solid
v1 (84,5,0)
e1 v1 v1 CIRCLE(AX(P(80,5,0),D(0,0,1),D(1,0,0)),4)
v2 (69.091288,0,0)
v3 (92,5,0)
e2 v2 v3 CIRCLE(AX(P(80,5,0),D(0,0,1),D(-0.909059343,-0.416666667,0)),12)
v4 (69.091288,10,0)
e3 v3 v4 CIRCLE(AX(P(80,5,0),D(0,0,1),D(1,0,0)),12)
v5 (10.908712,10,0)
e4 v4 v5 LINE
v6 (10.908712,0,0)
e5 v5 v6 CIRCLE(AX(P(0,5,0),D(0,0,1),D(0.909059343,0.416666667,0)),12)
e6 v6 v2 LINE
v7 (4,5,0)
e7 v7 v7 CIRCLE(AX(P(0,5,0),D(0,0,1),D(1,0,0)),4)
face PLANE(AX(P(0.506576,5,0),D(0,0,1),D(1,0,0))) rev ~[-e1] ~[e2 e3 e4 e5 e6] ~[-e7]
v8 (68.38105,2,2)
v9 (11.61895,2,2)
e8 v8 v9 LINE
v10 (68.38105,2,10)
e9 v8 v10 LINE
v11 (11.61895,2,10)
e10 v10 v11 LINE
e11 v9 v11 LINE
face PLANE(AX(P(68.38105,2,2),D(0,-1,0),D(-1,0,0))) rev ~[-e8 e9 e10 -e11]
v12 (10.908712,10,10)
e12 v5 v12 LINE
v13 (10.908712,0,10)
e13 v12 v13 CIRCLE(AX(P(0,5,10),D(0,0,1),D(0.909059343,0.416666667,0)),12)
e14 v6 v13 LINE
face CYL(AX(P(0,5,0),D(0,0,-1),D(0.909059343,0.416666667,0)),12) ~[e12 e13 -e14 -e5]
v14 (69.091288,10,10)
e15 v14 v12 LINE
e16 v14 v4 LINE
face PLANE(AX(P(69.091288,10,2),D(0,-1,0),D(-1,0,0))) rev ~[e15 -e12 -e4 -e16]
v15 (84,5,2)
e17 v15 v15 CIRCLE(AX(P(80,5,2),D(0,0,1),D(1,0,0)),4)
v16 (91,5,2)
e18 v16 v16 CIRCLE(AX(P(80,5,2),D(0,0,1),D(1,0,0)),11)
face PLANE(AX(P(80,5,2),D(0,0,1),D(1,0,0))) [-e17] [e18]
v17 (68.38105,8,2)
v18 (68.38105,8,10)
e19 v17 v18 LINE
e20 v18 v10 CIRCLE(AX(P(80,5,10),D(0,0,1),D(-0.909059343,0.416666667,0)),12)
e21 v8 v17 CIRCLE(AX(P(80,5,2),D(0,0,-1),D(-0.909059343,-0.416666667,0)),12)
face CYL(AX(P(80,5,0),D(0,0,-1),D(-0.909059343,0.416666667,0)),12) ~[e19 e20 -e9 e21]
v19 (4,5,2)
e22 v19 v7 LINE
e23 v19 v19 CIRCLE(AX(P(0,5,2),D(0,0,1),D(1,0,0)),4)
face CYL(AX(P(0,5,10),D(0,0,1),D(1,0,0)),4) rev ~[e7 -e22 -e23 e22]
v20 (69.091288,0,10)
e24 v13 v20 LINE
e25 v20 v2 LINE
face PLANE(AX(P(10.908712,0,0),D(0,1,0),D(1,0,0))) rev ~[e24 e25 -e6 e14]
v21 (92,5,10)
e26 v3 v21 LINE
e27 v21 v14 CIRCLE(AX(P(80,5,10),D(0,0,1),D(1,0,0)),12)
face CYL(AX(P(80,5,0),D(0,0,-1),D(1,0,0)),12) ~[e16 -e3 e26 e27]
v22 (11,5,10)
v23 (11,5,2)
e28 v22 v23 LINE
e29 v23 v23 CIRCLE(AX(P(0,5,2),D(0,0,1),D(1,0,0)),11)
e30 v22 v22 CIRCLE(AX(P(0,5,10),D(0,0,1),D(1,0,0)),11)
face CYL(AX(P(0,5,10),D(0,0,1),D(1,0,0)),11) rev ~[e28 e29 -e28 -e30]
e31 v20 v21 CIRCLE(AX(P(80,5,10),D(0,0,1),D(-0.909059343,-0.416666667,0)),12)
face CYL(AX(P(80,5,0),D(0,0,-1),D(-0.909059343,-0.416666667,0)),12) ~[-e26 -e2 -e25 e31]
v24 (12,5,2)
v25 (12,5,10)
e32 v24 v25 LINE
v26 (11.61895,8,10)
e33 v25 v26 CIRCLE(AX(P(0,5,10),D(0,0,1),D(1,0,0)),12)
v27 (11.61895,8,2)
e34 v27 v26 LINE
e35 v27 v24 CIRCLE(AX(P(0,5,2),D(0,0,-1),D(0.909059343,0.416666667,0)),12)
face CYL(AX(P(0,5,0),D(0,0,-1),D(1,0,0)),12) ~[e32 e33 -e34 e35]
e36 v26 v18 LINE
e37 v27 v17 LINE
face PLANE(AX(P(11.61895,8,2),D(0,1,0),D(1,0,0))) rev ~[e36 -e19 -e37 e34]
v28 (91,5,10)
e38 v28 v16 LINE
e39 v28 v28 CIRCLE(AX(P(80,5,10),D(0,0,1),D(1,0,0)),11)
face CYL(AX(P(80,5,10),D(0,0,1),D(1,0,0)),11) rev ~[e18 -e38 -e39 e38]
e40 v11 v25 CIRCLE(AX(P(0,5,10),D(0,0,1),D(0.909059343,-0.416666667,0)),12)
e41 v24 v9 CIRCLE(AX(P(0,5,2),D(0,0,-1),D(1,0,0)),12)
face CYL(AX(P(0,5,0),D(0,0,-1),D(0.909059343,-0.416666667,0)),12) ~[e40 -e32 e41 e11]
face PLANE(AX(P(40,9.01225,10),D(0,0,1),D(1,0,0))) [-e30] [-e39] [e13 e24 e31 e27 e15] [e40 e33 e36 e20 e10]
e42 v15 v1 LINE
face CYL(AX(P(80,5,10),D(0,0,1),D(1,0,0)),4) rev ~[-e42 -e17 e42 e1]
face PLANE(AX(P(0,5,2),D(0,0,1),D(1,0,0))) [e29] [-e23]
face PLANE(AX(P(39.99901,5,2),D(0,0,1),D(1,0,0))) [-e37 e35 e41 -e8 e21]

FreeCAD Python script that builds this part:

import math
import FreeCAD as App
import Part
import Sketcher
from FreeCAD import Vector
Q = App.Units.Quantity

doc = App.newDocument("Part")
body = doc.addObject("PartDesign::Body", "Body")

sketch1 = doc.addObject("Sketcher::SketchObject", "Sketch")
body.addObject(sketch1)
sketch1.AttachmentSupport = (doc.XY_Plane, [""])
sketch1.MapMode = "FlatFace"
sketch1.addGeometry(Part.ArcOfCircle(Part.Circle(Vector(0, 5, 0), Vector(0, 0, 1), 12), math.radians(-25), math.radians(0)), False)
sketch1.addGeometry(Part.LineSegment(Vector(11, 0, 0), Vector(69, 0, 0)), False)
sketch1.addGeometry(Part.ArcOfCircle(Part.Circle(Vector(80, 5, 0), Vector(0, 0, 1), 12), math.radians(155), math.radians(205)), False)
sketch1.addGeometry(Part.LineSegment(Vector(69, 10, 0), Vector(11, 10, 0)), False)
sketch1.addGeometry(Part.ArcOfCircle(Part.Circle(Vector(0, 5, 0), Vector(0, 0, 1), 12), math.radians(0), math.radians(25)), False)
sketch1.addConstraint(Sketcher.Constraint("Coincident", 0, 1, 1, 1))
sketch1.addConstraint(Sketcher.Constraint("Coincident", 1, 2, 2, 2))
sketch1.addConstraint(Sketcher.Constraint("Coincident", 2, 1, 3, 1))
sketch1.addConstraint(Sketcher.Constraint("Coincident", 3, 2, 4, 2))
sketch1.addConstraint(Sketcher.Constraint("Tangent", 4, 1, 0, 2))
sketch1.addConstraint(Sketcher.Constraint("Horizontal", 1))
sketch1.addConstraint(Sketcher.Constraint("Horizontal", 3))
sketch1.addConstraint(Sketcher.Constraint("Equal", 0, 2))
sketch1.addConstraint(Sketcher.Constraint("Equal", 2, 4))
sketch1.addConstraint(Sketcher.Constraint("PointOnObject", 0, 3, -2))
sketch1.addConstraint(Sketcher.Constraint("PointOnObject", 0, 1, -1))
sketch1.addConstraint(Sketcher.Constraint("Horizontal", 0, 3, 2, 3))
sketch1.addConstraint(Sketcher.Constraint("Horizontal", 2, 3, 4, 1))
sketch1.addConstraint(Sketcher.Constraint("Vertical", 1, 2, 2, 1))
sketch1.addConstraint(Sketcher.Constraint("Radius", 0, Q("12 mm")))
sketch1.addConstraint(Sketcher.Constraint("DistanceY", -1, 1, 0, 3, Q("5 mm")))
sketch1.addConstraint(Sketcher.Constraint("DistanceX", -1, 1, 2, 3, Q("80 mm")))
pad1 = doc.addObject("PartDesign::Pad", "Pad")
body.addObject(pad1)
pad1.Profile = sketch1
pad1.Length = 2

sketch2 = doc.addObject("Sketcher::SketchObject", "Sketch001")
body.addObject(sketch2)
sketch2.AttachmentSupport = (doc.XY_Plane, [""])
sketch2.MapMode = "FlatFace"
sketch2.addGeometry(Part.ArcOfCircle(Part.Circle(Vector(0, 5, 0), Vector(0, 0, 1), 12), math.radians(25), math.radians(335)), False)
sketch2.addGeometry(Part.ArcOfCircle(Part.Circle(Vector(0, 5, 0), Vector(0, 0, 1), 12), math.radians(-25), math.radians(0)), False)
sketch2.addGeometry(Part.ArcOfCircle(Part.Circle(Vector(0, 5, 0), Vector(0, 0, 1), 12), math.radians(0), math.radians(25)), False)
sketch2.addGeometry(Part.ArcOfCircle(Part.Circle(Vector(80, 5, 0), Vector(0, 0, 1), 12), math.radians(155), math.radians(205)), False)
sketch2.addGeometry(Part.ArcOfCircle(Part.Circle(Vector(80, 5, 0), Vector(0, 0, 1), 12), math.radians(-155), math.radians(0)), False)
sketch2.addGeometry(Part.ArcOfCircle(Part.Circle(Vector(80, 5, 0), Vector(0, 0, 1), 12), math.radians(0), math.radians(155)), False)
sketch2.addConstraint(Sketcher.Constraint("Tangent", 0, 2, 1, 1))
sketch2.addConstraint(Sketcher.Constraint("Tangent", 1, 2, 2, 1))
sketch2.addConstraint(Sketcher.Constraint("Tangent", 2, 2, 0, 1))
sketch2.addConstraint(Sketcher.Constraint("Tangent", 3, 2, 4, 1))
sketch2.addConstraint(Sketcher.Constraint("Tangent", 4, 2, 5, 1))
sketch2.addConstraint(Sketcher.Constraint("Tangent", 5, 2, 3, 1))
sketch2.addConstraint(Sketcher.Constraint("Equal", 2, 3))
sketch2.addConstraint(Sketcher.Constraint("PointOnObject", 0, 3, -2))
sketch2.addConstraint(Sketcher.Constraint("PointOnObject", 0, 2, -1))
sketch2.addConstraint(Sketcher.Constraint("PointOnObject", 3, 2, -1))
sketch2.addConstraint(Sketcher.Constraint("Horizontal", 2, 3, 3, 3))
sketch2.addConstraint(Sketcher.Constraint("Horizontal", 5, 3, 1, 2))
sketch2.addConstraint(Sketcher.Constraint("Horizontal", 1, 2, 4, 2))
sketch2.addConstraint(Sketcher.Constraint("Horizontal", 2, 2, 5, 2))
sketch2.addConstraint(Sketcher.Constraint("Vertical", 0, 2, 2, 2))
sketch2.addConstraint(Sketcher.Constraint("Radius", 0, Q("12 mm")))
sketch2.addConstraint(Sketcher.Constraint("DistanceY", -1, 1, 0, 3, Q("5 mm")))
sketch2.addConstraint(Sketcher.Constraint("DistanceX", -1, 1, 3, 3, Q("80 mm")))
pad2 = doc.addObject("PartDesign::Pad", "Pad001")
body.addObject(pad2)
pad2.Profile = sketch2
pad2.Length = 10

sketch3 = doc.addObject("Sketcher::SketchObject", "Sketch002")
body.addObject(sketch3)
sketch3.AttachmentSupport = (doc.XY_Plane, [""])
sketch3.MapMode = "FlatFace"
sketch3.AttachmentOffset = App.Placement(Vector(0, 0, 10), App.Rotation())
sketch3.addGeometry(Part.Circle(Vector(0, 5, 0), Vector(0, 0, 1), 4), False)
sketch3.addConstraint(Sketcher.Constraint("PointOnObject", 0, 3, -2))
sketch3.addConstraint(Sketcher.Constraint("Diameter", 0, Q("8 mm")))
sketch3.addConstraint(Sketcher.Constraint("DistanceY", -1, 1, 0, 3, Q("5 mm")))
pocket1 = doc.addObject("PartDesign::Pocket", "Pocket")
body.addObject(pocket1)
pocket1.Profile = sketch3
pocket1.Type = "ThroughAll"

sketch4 = doc.addObject("Sketcher::SketchObject", "Sketch003")
body.addObject(sketch4)
sketch4.AttachmentSupport = (doc.XY_Plane, [""])
sketch4.MapMode = "FlatFace"
sketch4.AttachmentOffset = App.Placement(Vector(0, 0, 10), App.Rotation())
sketch4.addGeometry(Part.Circle(Vector(0, 5, 0), Vector(0, 0, 1), 11), False)
sketch4.addGeometry(Part.Circle(Vector(0, 5, 0), Vector(0, 0, 1), 4), False)
sketch4.addConstraint(Sketcher.Constraint("Coincident", 1, 3, 0, 3))
sketch4.addConstraint(Sketcher.Constraint("PointOnObject", 0, 3, -2))
sketch4.addConstraint(Sketcher.Constraint("Diameter", 0, Q("22 mm")))
sketch4.addConstraint(Sketcher.Constraint("Diameter", 1, Q("8 mm")))
sketch4.addConstraint(Sketcher.Constraint("DistanceY", -1, 1, 0, 3, Q("5 mm")))
pocket2 = doc.addObject("PartDesign::Pocket", "Pocket001")
body.addObject(pocket2)
pocket2.Profile = sketch4
pocket2.Length = 8

sketch5 = doc.addObject("Sketcher::SketchObject", "Sketch004")
body.addObject(sketch5)
sketch5.AttachmentSupport = (doc.XY_Plane, [""])
sketch5.MapMode = "FlatFace"
sketch5.AttachmentOffset = App.Placement(Vector(0, 0, 10), App.Rotation())
sketch5.addGeometry(Part.Circle(Vector(80, 5, 0), Vector(0, 0, 1), 4), False)
sketch5.addConstraint(Sketcher.Constraint("Diameter", 0, Q("8 mm")))
sketch5.addConstraint(Sketcher.Constraint("DistanceX", -1, 1, 0, 3, Q("80 mm")))
sketch5.addConstraint(Sketcher.Constraint("DistanceY", -1, 1, 0, 3, Q("5 mm")))
pocket3 = doc.addObject("PartDesign::Pocket", "Pocket002")
body.addObject(pocket3)
pocket3.Profile = sketch5
pocket3.Type = "ThroughAll"

sketch6 = doc.addObject("Sketcher::SketchObject", "Sketch005")
body.addObject(sketch6)
sketch6.AttachmentSupport = (doc.XY_Plane, [""])
sketch6.MapMode = "FlatFace"
sketch6.AttachmentOffset = App.Placement(Vector(0, 0, 10), App.Rotation())
sketch6.addGeometry(Part.Circle(Vector(80, 5, 0), Vector(0, 0, 1), 11), False)
sketch6.addGeometry(Part.Circle(Vector(80, 5, 0), Vector(0, 0, 1), 4), False)
sketch6.addConstraint(Sketcher.Constraint("Coincident", 1, 3, 0, 3))
sketch6.addConstraint(Sketcher.Constraint("Diameter", 0, Q("22 mm")))
sketch6.addConstraint(Sketcher.Constraint("Diameter", 1, Q("8 mm")))
sketch6.addConstraint(Sketcher.Constraint("DistanceX", -1, 1, 0, 3, Q("80 mm")))
sketch6.addConstraint(Sketcher.Constraint("DistanceY", -1, 1, 0, 3, Q("5 mm")))
pocket4 = doc.addObject("PartDesign::Pocket", "Pocket003")
body.addObject(pocket4)
pocket4.Profile = sketch6
pocket4.Length = 8

sketch7 = doc.addObject("Sketcher::SketchObject", "Sketch006")
body.addObject(sketch7)
sketch7.AttachmentSupport = (doc.XY_Plane, [""])
sketch7.MapMode = "FlatFace"
sketch7.AttachmentOffset = App.Placement(Vector(0, 0, 2), App.Rotation())
sketch7.addGeometry(Part.ArcOfCircle(Part.Circle(Vector(0, 5, 0), Vector(0, 0, 1), 12), math.radians(14.48), math.radians(24.62)), False)
sketch7.addGeometry(Part.LineSegment(Vector(11.6, 8, 0), Vector(68.4, 8, 0)), False)
sketch7.addGeometry(Part.ArcOfCircle(Part.Circle(Vector(80, 5, 0), Vector(0, 0, 1), 12), math.radians(155.38), math.radians(165.52)), False)
sketch7.addGeometry(Part.LineSegment(Vector(69.1, 10, 0), Vector(10.9, 10, 0)), False)
sketch7.addGeometry(Part.ArcOfCircle(Part.Circle(Vector(0, 5, 0), Vector(0, 0, 1), 12), math.radians(-24.62), math.radians(-14.48)), False)
sketch7.addGeometry(Part.LineSegment(Vector(10.9, 0, 0), Vector(69.1, 0, 0)), False)
sketch7.addGeometry(Part.ArcOfCircle(Part.Circle(Vector(80, 5, 0), Vector(0, 0, 1), 12), math.radians(-165.52), math.radians(-155.38)), False)
sketch7.addGeometry(Part.LineSegment(Vector(68.4, 2, 0), Vector(11.6, 2, 0)), False)
sketch7.addConstraint(Sketcher.Constraint("Coincident", 0, 1, 1, 1))
sketch7.addConstraint(Sketcher.Constraint("Coincident", 1, 2, 2, 2))
sketch7.addConstraint(Sketcher.Constraint("Coincident", 2, 1, 3, 1))
sketch7.addConstraint(Sketcher.Constraint("Coincident", 3, 2, 0, 2))
sketch7.addConstraint(Sketcher.Constraint("Coincident", 4, 1, 5, 1))
sketch7.addConstraint(Sketcher.Constraint("Coincident", 5, 2, 6, 2))
sketch7.addConstraint(Sketcher.Constraint("Coincident", 6, 1, 7, 1))
sketch7.addConstraint(Sketcher.Constraint("Coincident", 7, 2, 4, 2))
sketch7.addConstraint(Sketcher.Constraint("Horizontal", 1))
sketch7.addConstraint(Sketcher.Constraint("Horizontal", 3))
sketch7.addConstraint(Sketcher.Constraint("Horizontal", 5))
sketch7.addConstraint(Sketcher.Constraint("Horizontal", 7))
sketch7.addConstraint(Sketcher.Constraint("Coincident", 4, 3, 0, 3))
sketch7.addConstraint(Sketcher.Constraint("Coincident", 6, 3, 2, 3))
sketch7.addConstraint(Sketcher.Constraint("Equal", 0, 2))
sketch7.addConstraint(Sketcher.Constraint("Equal", 2, 4))
sketch7.addConstraint(Sketcher.Constraint("Equal", 4, 6))
sketch7.addConstraint(Sketcher.Constraint("PointOnObject", 0, 3, -2))
sketch7.addConstraint(Sketcher.Constraint("PointOnObject", 4, 1, -1))
sketch7.addConstraint(Sketcher.Constraint("Horizontal", 0, 3, 2, 3))
sketch7.addConstraint(Sketcher.Constraint("Vertical", 3, 2, 4, 1))
sketch7.addConstraint(Sketcher.Constraint("Vertical", 1, 2, 6, 1))
sketch7.addConstraint(Sketcher.Constraint("Radius", 0, Q("12 mm")))
sketch7.addConstraint(Sketcher.Constraint("DistanceY", -1, 1, 0, 3, Q("5 mm")))
sketch7.addConstraint(Sketcher.Constraint("DistanceX", -1, 1, 2, 3, Q("80 mm")))
sketch7.addConstraint(Sketcher.Constraint("DistanceY", -1, 1, 0, 1, Q("8 mm")))
pad3 = doc.addObject("PartDesign::Pad", "Pad002")
body.addObject(pad3)
pad3.Profile = sketch7
pad3.Length = 8

doc.recompute()
